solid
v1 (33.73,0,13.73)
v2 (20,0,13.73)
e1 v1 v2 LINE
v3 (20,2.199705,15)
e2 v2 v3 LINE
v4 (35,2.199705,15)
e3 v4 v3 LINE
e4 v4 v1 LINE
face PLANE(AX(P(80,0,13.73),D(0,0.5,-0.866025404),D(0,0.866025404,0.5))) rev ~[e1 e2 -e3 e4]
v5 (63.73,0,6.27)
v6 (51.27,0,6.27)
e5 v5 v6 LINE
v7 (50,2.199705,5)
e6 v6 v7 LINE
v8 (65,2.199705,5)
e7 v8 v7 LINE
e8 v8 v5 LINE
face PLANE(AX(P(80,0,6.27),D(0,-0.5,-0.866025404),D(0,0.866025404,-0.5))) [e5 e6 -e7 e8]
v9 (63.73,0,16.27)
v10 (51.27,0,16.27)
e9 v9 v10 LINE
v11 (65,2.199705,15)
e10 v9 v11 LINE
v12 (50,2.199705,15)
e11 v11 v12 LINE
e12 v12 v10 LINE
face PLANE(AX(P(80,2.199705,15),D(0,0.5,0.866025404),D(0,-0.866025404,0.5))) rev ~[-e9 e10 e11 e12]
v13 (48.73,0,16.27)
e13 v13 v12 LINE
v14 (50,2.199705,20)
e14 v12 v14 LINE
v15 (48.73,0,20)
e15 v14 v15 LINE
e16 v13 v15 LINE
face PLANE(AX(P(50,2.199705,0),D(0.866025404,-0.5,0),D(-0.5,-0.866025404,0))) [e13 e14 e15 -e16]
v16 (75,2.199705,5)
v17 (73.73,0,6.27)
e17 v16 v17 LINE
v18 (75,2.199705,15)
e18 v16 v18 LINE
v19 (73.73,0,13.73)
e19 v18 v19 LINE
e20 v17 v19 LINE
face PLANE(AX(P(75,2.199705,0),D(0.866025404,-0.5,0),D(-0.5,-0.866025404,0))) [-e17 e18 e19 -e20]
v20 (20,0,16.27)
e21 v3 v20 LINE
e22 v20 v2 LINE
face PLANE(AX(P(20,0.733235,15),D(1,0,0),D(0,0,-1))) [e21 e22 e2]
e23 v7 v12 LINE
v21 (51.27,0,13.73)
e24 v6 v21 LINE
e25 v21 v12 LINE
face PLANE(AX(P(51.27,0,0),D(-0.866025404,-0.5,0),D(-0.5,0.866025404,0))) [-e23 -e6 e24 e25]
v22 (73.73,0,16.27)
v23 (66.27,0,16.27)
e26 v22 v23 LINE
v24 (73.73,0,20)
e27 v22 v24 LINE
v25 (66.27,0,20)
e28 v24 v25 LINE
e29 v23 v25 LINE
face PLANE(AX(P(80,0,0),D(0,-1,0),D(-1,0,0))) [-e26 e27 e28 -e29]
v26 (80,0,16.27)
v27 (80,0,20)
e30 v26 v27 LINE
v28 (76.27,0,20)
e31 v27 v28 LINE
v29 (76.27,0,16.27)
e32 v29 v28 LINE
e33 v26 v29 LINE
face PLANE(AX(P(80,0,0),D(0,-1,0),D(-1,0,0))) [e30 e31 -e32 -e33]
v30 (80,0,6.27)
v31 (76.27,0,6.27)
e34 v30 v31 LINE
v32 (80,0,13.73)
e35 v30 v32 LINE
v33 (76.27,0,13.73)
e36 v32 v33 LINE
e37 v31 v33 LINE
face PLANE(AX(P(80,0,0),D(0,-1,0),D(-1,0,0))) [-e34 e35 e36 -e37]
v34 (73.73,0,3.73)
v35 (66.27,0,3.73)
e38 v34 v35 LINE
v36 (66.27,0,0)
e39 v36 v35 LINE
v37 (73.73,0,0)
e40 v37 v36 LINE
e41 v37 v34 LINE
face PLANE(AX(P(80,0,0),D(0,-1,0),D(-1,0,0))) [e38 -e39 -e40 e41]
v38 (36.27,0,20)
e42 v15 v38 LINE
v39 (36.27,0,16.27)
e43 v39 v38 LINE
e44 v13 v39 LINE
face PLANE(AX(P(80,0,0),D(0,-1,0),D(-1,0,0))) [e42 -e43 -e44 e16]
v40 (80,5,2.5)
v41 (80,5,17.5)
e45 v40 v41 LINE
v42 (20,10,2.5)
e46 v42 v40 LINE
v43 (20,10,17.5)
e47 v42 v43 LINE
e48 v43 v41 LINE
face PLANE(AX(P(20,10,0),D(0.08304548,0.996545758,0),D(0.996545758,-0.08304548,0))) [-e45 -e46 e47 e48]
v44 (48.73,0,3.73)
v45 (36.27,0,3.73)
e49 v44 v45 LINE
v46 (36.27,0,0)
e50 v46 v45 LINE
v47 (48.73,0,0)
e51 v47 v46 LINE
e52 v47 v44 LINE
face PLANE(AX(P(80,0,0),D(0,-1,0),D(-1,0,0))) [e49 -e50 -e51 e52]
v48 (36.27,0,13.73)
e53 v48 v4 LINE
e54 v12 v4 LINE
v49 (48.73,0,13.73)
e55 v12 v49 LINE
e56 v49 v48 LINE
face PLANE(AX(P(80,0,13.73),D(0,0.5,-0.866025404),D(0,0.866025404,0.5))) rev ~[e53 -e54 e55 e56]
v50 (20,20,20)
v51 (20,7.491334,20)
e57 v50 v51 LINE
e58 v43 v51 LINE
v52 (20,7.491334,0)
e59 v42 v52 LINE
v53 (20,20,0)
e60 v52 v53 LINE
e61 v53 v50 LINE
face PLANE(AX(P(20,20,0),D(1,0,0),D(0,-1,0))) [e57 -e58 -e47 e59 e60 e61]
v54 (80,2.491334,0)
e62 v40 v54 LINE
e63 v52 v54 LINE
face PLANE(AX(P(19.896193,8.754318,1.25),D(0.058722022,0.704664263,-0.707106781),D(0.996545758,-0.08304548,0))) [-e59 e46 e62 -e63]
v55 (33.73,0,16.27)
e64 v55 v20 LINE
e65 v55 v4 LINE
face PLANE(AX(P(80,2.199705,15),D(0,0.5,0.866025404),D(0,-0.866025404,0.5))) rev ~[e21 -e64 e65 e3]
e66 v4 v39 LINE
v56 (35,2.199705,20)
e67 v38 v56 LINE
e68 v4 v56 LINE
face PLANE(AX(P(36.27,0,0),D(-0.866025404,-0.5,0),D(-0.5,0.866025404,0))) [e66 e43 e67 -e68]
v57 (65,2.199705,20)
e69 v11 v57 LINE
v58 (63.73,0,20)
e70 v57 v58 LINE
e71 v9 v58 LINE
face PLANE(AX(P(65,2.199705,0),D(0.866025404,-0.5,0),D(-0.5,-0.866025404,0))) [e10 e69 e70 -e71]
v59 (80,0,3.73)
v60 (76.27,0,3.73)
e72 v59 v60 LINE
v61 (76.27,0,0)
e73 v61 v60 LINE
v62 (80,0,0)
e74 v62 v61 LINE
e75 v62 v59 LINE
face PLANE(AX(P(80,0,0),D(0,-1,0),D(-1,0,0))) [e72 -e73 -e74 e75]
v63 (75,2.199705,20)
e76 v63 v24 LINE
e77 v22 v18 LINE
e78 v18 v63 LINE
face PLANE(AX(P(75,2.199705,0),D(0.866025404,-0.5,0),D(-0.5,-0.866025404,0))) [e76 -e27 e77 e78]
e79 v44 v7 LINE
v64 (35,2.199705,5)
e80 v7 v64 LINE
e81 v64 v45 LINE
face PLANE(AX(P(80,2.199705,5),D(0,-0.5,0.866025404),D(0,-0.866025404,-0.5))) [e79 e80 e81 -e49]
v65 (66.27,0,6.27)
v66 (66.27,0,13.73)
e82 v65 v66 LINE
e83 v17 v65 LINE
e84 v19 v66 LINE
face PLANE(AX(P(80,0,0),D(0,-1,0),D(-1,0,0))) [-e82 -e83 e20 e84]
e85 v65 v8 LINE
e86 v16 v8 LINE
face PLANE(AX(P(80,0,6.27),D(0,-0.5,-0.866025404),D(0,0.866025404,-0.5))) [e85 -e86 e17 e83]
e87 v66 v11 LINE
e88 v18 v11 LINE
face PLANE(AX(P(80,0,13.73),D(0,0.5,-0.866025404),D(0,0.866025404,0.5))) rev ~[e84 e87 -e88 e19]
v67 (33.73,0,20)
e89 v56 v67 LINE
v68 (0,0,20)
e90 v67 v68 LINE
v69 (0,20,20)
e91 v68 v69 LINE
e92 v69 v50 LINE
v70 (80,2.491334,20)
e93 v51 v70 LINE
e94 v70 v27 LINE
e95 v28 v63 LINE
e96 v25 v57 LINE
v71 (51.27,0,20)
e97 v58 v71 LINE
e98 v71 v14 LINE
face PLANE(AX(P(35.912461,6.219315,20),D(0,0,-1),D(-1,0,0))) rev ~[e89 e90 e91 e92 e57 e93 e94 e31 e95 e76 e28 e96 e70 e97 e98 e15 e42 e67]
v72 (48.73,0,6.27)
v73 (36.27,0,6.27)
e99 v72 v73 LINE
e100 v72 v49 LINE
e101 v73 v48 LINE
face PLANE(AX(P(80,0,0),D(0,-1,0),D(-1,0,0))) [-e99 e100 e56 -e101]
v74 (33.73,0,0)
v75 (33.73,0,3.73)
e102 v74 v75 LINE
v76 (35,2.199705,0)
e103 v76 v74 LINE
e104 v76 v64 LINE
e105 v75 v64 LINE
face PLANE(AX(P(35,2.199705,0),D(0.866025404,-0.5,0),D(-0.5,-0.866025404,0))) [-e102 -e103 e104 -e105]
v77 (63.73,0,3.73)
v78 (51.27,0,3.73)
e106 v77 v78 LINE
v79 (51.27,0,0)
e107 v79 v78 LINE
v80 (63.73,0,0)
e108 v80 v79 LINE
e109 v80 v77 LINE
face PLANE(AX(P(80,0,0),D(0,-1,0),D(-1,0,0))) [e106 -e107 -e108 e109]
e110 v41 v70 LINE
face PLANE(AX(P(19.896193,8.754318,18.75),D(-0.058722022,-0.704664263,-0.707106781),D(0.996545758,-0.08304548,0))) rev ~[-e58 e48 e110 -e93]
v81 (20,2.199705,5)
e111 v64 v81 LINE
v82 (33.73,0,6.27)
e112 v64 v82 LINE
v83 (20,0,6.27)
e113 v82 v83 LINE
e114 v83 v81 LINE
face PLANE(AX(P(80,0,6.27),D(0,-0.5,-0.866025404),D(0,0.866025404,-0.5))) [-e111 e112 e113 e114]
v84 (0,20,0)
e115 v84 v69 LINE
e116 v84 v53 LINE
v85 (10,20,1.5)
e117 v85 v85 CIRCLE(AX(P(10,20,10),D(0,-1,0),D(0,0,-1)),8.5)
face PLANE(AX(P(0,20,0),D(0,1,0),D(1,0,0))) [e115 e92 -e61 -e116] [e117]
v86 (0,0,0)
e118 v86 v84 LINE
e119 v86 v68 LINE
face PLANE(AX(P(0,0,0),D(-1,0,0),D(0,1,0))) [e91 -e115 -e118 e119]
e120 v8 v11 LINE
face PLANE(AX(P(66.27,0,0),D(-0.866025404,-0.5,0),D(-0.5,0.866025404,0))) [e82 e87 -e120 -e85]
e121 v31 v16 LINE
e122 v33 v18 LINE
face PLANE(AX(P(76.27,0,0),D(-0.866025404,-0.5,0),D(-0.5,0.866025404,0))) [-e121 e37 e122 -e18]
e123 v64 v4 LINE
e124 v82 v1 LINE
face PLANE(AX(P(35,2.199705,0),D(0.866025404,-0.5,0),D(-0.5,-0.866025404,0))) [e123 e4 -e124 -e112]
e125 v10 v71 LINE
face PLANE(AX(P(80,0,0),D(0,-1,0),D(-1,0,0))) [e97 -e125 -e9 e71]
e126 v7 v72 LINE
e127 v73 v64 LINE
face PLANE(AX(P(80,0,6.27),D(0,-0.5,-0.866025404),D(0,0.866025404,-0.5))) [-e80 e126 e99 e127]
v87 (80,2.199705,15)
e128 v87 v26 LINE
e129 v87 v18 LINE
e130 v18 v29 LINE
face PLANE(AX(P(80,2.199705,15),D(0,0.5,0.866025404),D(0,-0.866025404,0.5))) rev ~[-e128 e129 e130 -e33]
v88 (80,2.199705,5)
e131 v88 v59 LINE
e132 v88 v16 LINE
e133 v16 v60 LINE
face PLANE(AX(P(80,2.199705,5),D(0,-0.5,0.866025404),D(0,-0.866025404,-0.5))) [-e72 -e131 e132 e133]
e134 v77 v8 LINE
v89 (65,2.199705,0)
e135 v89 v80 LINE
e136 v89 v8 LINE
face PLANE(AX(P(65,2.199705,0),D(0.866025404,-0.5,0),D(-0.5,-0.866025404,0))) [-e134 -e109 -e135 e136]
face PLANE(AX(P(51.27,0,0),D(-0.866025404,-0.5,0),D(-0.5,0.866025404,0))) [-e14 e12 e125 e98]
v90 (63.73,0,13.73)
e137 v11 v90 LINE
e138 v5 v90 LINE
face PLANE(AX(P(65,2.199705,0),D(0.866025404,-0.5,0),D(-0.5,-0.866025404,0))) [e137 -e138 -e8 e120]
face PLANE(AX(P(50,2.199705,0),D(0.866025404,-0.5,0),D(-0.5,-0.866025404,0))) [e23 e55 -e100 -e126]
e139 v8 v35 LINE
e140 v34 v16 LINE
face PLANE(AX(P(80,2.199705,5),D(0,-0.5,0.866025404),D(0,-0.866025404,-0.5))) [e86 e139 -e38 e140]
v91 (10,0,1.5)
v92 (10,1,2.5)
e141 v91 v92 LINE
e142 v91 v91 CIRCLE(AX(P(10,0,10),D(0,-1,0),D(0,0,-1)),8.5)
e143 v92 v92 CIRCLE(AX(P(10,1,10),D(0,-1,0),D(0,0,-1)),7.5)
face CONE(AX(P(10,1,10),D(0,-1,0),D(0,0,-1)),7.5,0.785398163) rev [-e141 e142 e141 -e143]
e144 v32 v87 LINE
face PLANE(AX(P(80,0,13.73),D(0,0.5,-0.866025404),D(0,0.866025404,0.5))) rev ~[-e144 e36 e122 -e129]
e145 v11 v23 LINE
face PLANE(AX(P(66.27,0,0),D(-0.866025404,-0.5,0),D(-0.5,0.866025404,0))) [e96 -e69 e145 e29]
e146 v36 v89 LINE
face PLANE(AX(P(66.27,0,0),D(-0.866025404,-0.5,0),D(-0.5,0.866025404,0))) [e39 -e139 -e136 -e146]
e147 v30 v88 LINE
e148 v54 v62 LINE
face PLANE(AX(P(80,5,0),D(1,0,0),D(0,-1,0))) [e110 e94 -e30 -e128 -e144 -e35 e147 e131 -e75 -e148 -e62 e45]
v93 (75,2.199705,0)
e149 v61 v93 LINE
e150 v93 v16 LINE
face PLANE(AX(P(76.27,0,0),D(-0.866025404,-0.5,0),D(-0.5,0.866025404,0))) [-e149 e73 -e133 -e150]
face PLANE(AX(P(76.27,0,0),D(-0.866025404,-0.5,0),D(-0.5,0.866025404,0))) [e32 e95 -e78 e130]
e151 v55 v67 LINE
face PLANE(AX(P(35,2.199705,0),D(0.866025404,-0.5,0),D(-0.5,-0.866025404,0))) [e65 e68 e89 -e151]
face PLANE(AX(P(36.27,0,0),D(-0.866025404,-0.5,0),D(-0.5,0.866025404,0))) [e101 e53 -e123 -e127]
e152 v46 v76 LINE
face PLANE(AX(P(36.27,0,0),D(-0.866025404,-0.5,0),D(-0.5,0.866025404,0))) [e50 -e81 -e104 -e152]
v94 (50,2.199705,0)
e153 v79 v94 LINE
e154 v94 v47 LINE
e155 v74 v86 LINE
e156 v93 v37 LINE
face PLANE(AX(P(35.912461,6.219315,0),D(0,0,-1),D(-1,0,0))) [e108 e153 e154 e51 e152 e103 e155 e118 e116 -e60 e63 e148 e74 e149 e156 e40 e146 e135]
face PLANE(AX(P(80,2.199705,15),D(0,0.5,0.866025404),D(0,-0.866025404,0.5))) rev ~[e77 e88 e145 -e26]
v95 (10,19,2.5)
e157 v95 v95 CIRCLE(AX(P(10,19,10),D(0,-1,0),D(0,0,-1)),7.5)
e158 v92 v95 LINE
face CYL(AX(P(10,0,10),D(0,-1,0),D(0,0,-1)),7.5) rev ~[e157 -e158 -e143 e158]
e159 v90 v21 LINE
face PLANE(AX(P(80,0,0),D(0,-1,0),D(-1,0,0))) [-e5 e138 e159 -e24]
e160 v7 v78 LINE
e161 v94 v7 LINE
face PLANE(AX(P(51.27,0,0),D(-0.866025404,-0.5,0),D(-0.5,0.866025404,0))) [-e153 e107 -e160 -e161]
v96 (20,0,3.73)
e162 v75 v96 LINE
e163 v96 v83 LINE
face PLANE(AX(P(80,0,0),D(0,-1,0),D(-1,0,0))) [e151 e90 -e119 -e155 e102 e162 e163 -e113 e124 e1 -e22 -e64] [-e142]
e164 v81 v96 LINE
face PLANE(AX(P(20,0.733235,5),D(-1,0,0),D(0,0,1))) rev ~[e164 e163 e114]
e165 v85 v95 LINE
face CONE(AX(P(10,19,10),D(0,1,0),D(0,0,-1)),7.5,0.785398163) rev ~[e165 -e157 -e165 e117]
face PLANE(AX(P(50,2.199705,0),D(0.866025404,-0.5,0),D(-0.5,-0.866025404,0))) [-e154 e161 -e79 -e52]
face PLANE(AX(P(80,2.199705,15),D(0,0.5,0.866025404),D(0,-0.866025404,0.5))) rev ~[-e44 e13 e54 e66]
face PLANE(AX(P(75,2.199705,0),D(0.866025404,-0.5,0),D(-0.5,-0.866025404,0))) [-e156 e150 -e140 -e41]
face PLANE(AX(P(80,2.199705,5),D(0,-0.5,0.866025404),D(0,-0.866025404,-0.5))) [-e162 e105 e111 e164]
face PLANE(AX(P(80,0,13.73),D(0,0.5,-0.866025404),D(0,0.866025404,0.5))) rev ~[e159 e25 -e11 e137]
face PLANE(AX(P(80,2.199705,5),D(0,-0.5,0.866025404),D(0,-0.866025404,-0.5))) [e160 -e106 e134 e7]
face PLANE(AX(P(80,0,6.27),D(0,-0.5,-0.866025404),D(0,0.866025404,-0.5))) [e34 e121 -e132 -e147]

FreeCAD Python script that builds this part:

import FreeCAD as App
import Part
import Sketcher
Q = App.Units.Quantity


def edges_at(feature, points):
    """Names of the edges that pass closest to the given points."""
    edges = feature.Shape.Edges
    near = lambda p: min(range(len(edges)), key=lambda i: edges[i].distToShape(Part.Vertex(*p))[0])
    return sorted({f"Edge{near(p) + 1}" for p in points})


def add_polygon(sketch, points):
    """Adds a closed chain of lines whose ends are joined by coincident constraints."""
    first, n = sketch.GeometryCount, len(points)
    for a, b in zip(points, points[1:] + points[:1]):
        sketch.addGeometry(Part.LineSegment(App.Vector(*a, 0), App.Vector(*b, 0)), False)
    for i in range(n):
        sketch.addConstraint(Sketcher.Constraint("Coincident", first + i, 2, first + (i + 1) % n, 1))

doc = App.newDocument("Part")
params = doc.addObject("Spreadsheet::Sheet", "Params")
for row, (alias, value) in enumerate([
    ("sketch1_width", "80 mm"),
    ("sketch1_width2", "20 mm"),
    ("sketch1_height", "5 mm"),
    ("sketch1_height2", "10 mm"),
    ("pad1_length", "20 mm"),
    ("chamfer_size", "2.5 mm"),
    ("sketch2_diameter", "15 mm"),
    ("sketch3_height", "2.54 mm"),
    ("pocket2_length", "60 mm"),
    ("sketch4_width", "2.54 mm"),
    ("chamfer2_size", "1 mm"),
], start=1):
    params.set(f"A{row}", alias)
    params.set(f"B{row}", "=" + value)
    params.setAlias(f"B{row}", alias)

body = doc.addObject("PartDesign::Body", "Body")

# Sketch on XY plane
sketch1 = body.newObject("Sketcher::SketchObject", "Sketch")
sketch1.AttachmentSupport = (doc.getObject("XY_Plane"), [""])
sketch1.MapMode = "FlatFace"
add_polygon(sketch1, [(0, 20), (0, 0), (80, 0), (80, 5), (20, 10), (20, 20)])  # lines 0-5
sketch1.addConstraint([
    Sketcher.Constraint("Vertical", 0),
    Sketcher.Constraint("Horizontal", 1),
    Sketcher.Constraint("Vertical", 2),
    Sketcher.Constraint("Vertical", 4),
    Sketcher.Constraint("Horizontal", 5),
    Sketcher.Constraint("Coincident", 0, 2, -1, 1),
    Sketcher.Constraint("Equal", 5, 0),
    Sketcher.Constraint("DistanceX", 1, 1, 1, 2, Q("80 mm")),
    Sketcher.Constraint("DistanceX", 5, 2, 5, 1, Q("20 mm")),
    Sketcher.Constraint("DistanceY", 2, 1, 2, 2, Q("5 mm")),
    Sketcher.Constraint("DistanceY", 4, 1, 4, 2, Q("10 mm")),
])
sketch1.setExpression("Constraints[13]", "Params.sketch1_width")
sketch1.setExpression("Constraints[14]", "Params.sketch1_width2")
sketch1.setExpression("Constraints[15]", "Params.sketch1_height")
sketch1.setExpression("Constraints[16]", "Params.sketch1_height2")
pad1 = body.newObject("PartDesign::Pad", "Pad")
pad1.Profile = sketch1
pad1.setExpression("Length", "Params.pad1_length")
doc.recompute()

chamfer = body.newObject("PartDesign::Chamfer", "Chamfer")
chamfer.Base = (pad1, edges_at(pad1, [(50, 7.5, 20), (50, 7.5, 0)]))
chamfer.setExpression("Size", "Params.chamfer_size")

# Sketch on XZ plane
sketch2 = body.newObject("Sketcher::SketchObject", "Sketch001")
sketch2.AttachmentSupport = (doc.getObject("XZ_Plane"), [""])
sketch2.MapMode = "FlatFace"
sketch2.addGeometry(Part.Circle(App.Vector(10, 10, 0), App.Vector(0, 0, 1), 8), False)
sketch2.addConstraint([
    Sketcher.Constraint("Diameter", 0, Q("15 mm")),
    Sketcher.Constraint("DistanceX", -1, 1, 0, 3, Q("10 mm")),
    Sketcher.Constraint("DistanceY", -1, 1, 0, 3, Q("10 mm")),
])
sketch2.setExpression("Constraints[0]", "Params.sketch2_diameter")
pocket1 = body.newObject("PartDesign::Pocket", "Pocket")
pocket1.Profile = sketch2
pocket1.Type = "ThroughAll"

# Sketch on YZ plane
sketch3 = body.newObject("Sketcher::SketchObject", "Sketch002")
sketch3.AttachmentSupport = (doc.getObject("YZ_Plane"), [""])
sketch3.MapMode = "FlatFace"
sketch3.AttachmentOffset = App.Placement(App.Vector(0, 0, 80), App.Rotation())
add_polygon(sketch3, [(2.2, 15), (0, 16.3), (0, 13.7)])  # lines 0-2
add_polygon(sketch3, [(2.2, 5), (0, 6.3), (0, 3.7)])  # lines 3-5
sketch3.addConstraint([
    Sketcher.Constraint("Vertical", 1),
    Sketcher.Constraint("Vertical", 4),
    Sketcher.Constraint("PointOnObject", 0, 2, -2),
    Sketcher.Constraint("PointOnObject", 3, 2, -2),
    Sketcher.Constraint("Parallel", 0, 3),
    Sketcher.Constraint("Parallel", 2, 5),
    Sketcher.Constraint("Vertical", 2, 2, 5, 2),
    Sketcher.Constraint("Equal", 0, 2),
    Sketcher.Constraint("Angle", 0, Q("150 deg")),
    Sketcher.Constraint("DistanceY", -1, 1, 2, 2, Q("15 mm")),
    Sketcher.Constraint("DistanceY", -1, 1, 5, 2, Q("5 mm")),
    Sketcher.Constraint("DistanceY", 1, 2, 1, 1, Q("2.54 mm")),
])
sketch3.setExpression("Constraints[17]", "Params.sketch3_height")
pocket2 = body.newObject("PartDesign::Pocket", "Pocket001")
pocket2.Profile = sketch3
pocket2.setExpression("Length", "Params.pocket2_length")

# Sketch on XY plane
sketch4 = body.newObject("Sketcher::SketchObject", "Sketch003")
sketch4.AttachmentSupport = (doc.getObject("XY_Plane"), [""])
sketch4.MapMode = "FlatFace"
add_polygon(sketch4, [(75, 2.2), (73.7, 0), (76.3, 0)])  # lines 0-2
add_polygon(sketch4, [(65, 2.2), (63.7, 0), (66.3, 0)])  # lines 3-5
add_polygon(sketch4, [(50, 2.2), (48.7, 0), (51.3, 0)])  # lines 6-8
add_polygon(sketch4, [(35, 2.2), (33.7, 0), (36.3, 0)])  # lines 9-11
sketch4.addConstraint([
    Sketcher.Constraint("Horizontal", 1),
    Sketcher.Constraint("Horizontal", 4),
    Sketcher.Constraint("Horizontal", 7),
    Sketcher.Constraint("Horizontal", 10),
    Sketcher.Constraint("PointOnObject", 0, 2, -1),
    Sketcher.Constraint("PointOnObject", 3, 2, -1),
    Sketcher.Constraint("PointOnObject", 6, 2, -1),
    Sketcher.Constraint("PointOnObject", 9, 2, -1),
    Sketcher.Constraint("Parallel", 0, 3),
    Sketcher.Constraint("Parallel", 2, 5),
    Sketcher.Constraint("Parallel", 3, 6),
    Sketcher.Constraint("Parallel", 5, 8),
    Sketcher.Constraint("Parallel", 6, 9),
    Sketcher.Constraint("Parallel", 8, 11),
    Sketcher.Constraint("Horizontal", 2, 2, 5, 2),
    Sketcher.Constraint("Horizontal", 5, 2, 8, 2),
    Sketcher.Constraint("Horizontal", 8, 2, 11, 2),
    Sketcher.Constraint("Equal", 0, 2),
    Sketcher.Constraint("Angle", 0, Q("-120 deg")),
    Sketcher.Constraint("DistanceX", -1, 1, 2, 2, Q("75 mm")),
    Sketcher.Constraint("DistanceX", -1, 1, 5, 2, Q("65 mm")),
    Sketcher.Constraint("DistanceX", -1, 1, 8, 2, Q("50 mm")),
    Sketcher.Constraint("DistanceX", -1, 1, 11, 2, Q("35 mm")),
    Sketcher.Constraint("DistanceX", 1, 1, 1, 2, Q("2.54 mm")),
])
sketch4.setExpression("Constraints[35]", "Params.sketch4_width")
pocket3 = body.newObject("PartDesign::Pocket", "Pocket002")
pocket3.Profile = sketch4
pocket3.Type = "ThroughAll"
pocket3.Reversed = True
doc.recompute()

chamfer2 = body.newObject("PartDesign::Chamfer", "Chamfer001")
chamfer2.Base = (pocket3, edges_at(pocket3, [(10, 20, 17.5), (10, 0, 17.5)]))
chamfer2.setExpression("Size", "Params.chamfer2_size")

doc.recompute()
